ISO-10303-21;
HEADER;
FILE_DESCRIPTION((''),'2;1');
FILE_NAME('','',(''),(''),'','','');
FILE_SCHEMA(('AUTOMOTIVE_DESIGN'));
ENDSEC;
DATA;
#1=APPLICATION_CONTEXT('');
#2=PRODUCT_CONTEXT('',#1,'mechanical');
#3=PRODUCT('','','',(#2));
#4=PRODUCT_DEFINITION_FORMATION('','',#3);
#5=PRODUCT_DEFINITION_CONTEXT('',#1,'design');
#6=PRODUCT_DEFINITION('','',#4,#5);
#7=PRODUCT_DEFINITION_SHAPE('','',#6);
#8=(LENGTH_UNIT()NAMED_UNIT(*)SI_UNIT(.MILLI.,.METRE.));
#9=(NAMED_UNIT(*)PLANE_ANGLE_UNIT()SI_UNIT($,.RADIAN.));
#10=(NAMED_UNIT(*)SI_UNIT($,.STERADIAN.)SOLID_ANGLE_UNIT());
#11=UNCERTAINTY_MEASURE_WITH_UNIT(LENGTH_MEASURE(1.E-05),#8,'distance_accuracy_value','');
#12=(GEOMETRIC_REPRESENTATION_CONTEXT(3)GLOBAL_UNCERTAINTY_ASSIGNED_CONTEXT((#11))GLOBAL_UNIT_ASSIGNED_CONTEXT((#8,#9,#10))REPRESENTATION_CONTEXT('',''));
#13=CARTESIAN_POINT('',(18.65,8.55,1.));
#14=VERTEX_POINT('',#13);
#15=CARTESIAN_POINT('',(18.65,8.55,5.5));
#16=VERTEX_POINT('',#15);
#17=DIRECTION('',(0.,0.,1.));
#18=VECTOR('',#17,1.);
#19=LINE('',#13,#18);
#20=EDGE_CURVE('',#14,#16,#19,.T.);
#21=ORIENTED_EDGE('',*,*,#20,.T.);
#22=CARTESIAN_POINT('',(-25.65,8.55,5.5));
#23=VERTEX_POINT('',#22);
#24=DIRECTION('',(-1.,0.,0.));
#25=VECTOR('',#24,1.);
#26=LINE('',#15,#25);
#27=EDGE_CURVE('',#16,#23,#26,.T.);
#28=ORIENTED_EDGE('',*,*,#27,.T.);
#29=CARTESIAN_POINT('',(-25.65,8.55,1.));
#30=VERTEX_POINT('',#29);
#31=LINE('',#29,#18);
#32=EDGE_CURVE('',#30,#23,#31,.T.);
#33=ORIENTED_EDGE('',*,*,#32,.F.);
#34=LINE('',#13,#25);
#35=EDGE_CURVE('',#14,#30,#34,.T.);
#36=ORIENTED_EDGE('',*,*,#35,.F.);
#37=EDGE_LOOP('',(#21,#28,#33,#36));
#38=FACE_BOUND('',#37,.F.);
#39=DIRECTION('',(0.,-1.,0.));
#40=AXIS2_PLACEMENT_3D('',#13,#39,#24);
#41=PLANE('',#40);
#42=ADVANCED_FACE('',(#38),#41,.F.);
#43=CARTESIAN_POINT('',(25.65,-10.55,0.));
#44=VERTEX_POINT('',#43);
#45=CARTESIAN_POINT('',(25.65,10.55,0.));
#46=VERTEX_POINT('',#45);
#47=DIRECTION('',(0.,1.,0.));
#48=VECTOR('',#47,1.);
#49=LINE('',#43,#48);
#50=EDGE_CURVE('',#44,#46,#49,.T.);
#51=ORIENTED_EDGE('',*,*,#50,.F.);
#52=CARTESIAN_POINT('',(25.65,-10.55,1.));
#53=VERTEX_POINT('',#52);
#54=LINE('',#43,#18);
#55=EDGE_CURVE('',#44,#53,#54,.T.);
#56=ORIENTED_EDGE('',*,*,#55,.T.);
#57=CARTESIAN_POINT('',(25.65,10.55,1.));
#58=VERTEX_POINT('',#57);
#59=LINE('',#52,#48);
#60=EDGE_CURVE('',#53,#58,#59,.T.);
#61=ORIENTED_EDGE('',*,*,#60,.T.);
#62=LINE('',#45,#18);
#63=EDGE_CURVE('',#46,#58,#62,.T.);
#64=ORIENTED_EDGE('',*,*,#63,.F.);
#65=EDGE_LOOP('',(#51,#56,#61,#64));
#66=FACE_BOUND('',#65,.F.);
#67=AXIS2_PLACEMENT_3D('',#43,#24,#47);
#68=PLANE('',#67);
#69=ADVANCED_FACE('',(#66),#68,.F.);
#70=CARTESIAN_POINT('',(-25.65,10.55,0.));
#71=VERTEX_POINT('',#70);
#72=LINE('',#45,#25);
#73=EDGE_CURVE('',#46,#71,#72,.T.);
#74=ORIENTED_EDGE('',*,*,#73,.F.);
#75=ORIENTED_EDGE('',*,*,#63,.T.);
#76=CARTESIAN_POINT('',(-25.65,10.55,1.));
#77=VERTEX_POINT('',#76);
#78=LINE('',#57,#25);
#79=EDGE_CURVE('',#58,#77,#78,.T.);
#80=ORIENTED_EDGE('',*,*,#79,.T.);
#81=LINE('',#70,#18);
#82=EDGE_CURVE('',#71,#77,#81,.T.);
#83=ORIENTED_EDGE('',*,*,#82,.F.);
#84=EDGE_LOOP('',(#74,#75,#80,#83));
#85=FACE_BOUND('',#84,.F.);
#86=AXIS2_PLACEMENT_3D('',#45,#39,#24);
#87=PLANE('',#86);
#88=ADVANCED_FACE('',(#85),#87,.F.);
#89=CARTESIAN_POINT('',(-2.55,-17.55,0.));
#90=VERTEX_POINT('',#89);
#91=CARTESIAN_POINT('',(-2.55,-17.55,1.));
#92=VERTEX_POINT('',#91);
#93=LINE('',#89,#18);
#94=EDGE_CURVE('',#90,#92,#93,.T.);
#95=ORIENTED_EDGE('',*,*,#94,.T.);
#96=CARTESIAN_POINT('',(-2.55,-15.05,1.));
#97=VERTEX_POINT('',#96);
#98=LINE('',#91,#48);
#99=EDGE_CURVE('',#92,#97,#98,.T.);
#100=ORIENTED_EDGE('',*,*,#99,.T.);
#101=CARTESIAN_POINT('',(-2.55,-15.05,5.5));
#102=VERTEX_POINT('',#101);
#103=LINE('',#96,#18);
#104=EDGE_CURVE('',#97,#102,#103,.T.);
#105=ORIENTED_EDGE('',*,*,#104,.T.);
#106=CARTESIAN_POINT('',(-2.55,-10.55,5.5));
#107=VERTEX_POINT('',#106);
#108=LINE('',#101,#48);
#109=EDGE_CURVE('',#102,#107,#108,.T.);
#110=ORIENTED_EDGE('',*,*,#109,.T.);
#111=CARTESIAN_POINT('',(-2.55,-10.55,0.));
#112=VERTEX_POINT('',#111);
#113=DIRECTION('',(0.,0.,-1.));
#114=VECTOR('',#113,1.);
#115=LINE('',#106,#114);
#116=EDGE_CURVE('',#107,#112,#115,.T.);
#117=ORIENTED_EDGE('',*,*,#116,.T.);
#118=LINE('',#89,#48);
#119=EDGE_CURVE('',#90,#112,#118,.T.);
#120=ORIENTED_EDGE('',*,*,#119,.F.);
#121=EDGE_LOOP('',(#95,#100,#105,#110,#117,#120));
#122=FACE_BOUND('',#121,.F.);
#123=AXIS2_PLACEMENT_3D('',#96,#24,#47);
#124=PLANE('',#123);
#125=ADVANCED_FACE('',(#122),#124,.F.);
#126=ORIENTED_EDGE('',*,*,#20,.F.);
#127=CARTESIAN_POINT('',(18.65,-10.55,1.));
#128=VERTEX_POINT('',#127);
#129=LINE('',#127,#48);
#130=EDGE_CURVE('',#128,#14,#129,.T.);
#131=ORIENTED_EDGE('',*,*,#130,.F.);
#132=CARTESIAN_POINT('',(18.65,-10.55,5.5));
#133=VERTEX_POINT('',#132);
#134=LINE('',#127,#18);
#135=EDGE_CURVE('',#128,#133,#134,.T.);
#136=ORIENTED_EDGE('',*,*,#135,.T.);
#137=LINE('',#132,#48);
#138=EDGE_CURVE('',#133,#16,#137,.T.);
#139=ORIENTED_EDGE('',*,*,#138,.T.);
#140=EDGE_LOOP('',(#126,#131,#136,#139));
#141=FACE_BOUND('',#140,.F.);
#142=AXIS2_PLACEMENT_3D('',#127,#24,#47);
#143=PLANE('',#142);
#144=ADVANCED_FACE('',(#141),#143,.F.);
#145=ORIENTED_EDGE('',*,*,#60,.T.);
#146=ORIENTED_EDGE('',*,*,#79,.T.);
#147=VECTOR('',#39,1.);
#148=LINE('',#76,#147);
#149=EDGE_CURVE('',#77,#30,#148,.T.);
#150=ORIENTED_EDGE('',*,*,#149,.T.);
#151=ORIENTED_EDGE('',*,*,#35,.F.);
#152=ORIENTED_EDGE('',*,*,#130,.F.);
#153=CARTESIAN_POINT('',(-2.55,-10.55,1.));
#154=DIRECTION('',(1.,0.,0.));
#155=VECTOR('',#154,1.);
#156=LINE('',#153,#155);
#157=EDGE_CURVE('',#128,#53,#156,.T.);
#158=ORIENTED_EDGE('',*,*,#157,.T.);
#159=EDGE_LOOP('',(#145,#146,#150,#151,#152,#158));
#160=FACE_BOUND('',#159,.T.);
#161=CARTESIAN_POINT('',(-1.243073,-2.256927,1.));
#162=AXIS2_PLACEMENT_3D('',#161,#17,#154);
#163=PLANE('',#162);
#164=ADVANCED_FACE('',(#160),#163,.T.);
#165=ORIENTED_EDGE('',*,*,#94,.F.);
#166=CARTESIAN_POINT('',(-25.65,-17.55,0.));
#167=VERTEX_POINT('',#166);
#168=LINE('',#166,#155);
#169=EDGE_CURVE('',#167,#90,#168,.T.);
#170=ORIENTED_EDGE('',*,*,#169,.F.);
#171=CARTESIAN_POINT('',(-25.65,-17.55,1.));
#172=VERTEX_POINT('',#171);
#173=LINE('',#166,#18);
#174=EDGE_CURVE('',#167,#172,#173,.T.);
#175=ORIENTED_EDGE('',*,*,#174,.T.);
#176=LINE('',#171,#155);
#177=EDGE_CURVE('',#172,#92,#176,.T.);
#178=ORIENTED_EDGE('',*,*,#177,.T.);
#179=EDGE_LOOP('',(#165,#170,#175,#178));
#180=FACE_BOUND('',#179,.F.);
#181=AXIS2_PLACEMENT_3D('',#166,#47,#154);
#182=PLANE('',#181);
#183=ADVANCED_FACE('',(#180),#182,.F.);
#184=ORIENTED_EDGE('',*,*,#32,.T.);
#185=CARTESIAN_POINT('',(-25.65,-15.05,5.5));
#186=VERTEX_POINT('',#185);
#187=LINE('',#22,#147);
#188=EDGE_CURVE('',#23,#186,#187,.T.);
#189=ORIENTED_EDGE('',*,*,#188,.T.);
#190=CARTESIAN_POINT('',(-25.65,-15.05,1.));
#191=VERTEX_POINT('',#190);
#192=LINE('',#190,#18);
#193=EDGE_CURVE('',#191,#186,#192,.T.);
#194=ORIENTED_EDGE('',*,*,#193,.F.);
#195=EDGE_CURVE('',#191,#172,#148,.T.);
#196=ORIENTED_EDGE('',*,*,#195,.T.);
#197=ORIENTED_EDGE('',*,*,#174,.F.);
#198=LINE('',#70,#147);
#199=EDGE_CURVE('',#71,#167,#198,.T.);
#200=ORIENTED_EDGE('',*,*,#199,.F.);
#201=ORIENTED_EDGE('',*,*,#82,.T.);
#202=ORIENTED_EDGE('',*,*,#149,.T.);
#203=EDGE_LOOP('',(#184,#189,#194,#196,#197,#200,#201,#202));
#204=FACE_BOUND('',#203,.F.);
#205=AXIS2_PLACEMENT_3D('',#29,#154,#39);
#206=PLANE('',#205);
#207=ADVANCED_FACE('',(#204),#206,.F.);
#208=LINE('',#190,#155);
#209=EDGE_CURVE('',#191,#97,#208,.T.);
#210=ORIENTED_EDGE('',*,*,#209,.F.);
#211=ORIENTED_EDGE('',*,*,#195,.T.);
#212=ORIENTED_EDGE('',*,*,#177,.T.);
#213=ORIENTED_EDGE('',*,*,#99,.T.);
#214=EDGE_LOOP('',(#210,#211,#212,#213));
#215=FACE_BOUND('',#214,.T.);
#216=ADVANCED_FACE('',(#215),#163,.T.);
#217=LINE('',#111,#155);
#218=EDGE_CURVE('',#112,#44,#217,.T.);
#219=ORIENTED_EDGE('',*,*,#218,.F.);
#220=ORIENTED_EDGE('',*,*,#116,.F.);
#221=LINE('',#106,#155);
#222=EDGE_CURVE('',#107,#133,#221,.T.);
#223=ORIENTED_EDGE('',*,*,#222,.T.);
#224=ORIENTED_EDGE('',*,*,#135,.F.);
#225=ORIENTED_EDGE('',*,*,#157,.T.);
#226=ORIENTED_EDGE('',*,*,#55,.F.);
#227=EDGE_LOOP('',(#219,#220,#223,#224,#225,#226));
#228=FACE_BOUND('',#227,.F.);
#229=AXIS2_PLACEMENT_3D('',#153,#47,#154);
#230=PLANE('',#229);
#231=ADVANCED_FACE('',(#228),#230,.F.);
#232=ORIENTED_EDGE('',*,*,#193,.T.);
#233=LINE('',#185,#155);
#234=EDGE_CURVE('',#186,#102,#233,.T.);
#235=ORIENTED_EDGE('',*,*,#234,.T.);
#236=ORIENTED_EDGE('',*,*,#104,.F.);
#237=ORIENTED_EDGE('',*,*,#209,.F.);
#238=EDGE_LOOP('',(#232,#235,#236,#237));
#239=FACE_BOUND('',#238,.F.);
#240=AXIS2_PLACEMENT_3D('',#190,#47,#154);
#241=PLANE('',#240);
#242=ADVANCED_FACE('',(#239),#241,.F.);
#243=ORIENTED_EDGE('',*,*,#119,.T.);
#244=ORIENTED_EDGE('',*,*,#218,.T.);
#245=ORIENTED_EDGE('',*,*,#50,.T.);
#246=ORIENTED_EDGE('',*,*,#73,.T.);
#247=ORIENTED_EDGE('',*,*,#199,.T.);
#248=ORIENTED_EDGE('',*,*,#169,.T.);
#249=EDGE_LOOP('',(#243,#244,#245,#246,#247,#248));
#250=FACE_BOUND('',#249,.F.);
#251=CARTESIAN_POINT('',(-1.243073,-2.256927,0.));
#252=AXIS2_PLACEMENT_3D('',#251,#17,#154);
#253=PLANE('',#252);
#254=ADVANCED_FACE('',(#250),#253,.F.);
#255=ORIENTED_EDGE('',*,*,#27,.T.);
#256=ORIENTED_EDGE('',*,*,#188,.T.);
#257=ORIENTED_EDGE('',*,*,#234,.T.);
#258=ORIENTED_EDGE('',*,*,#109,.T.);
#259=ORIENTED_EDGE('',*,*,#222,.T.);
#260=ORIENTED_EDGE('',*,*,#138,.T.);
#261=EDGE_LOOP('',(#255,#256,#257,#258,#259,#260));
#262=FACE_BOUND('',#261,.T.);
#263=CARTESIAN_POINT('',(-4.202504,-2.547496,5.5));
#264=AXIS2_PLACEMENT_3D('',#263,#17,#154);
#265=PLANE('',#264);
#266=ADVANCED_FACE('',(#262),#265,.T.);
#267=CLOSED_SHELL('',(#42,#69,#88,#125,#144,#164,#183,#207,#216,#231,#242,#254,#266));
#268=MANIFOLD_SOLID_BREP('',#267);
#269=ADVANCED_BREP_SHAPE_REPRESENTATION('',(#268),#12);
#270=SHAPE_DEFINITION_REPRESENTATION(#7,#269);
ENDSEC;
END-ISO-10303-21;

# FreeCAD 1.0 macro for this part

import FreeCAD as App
import Part
import Sketcher

V = App.Vector


def add_polygon(sketch, points):
    """Adds a closed chain of lines whose ends are joined by coincident constraints."""
    first, n = sketch.GeometryCount, len(points)
    for a, b in zip(points, points[1:] + points[:1]):
        sketch.addGeometry(Part.LineSegment(App.Vector(*a, 0), App.Vector(*b, 0)), False)
    for i in range(n):
        sketch.addConstraint(Sketcher.Constraint("Coincident", first + i, 2, first + (i + 1) % n, 1))

doc = App.newDocument("Part")
body = doc.addObject("PartDesign::Body", "Body")

sketch1 = body.newObject("Sketcher::SketchObject", "Sketch")
sketch1.AttachmentSupport = (doc.getObject("XY_Plane"), [""])
sketch1.MapMode = "FlatFace"
add_polygon(sketch1, [(-3, -11), (26, -11), (26, 11), (-26, 11), (-26, -18), (-3, -18)])
sketch1.addConstraint([
    Sketcher.Constraint("Horizontal", 0),
    Sketcher.Constraint("Vertical", 1),
    Sketcher.Constraint("Horizontal", 2),
    Sketcher.Constraint("Vertical", 3),
    Sketcher.Constraint("Horizontal", 4),
    Sketcher.Constraint("Vertical", 5),
    Sketcher.Constraint("Symmetric", 0, 2, 2, 2, -1, 1),
    Sketcher.Constraint("DistanceY", 5, 1, 5, 2, 7.0),
    Sketcher.Constraint("DistanceX", 0, 1, 0, 2, 28.2),
    Sketcher.Constraint("DistanceX", 2, 2, 2, 1, 51.3),
    Sketcher.Constraint("DistanceY", 1, 1, 1, 2, 21.1),
])
pad1 = body.newObject("PartDesign::Pad", "Pad")
pad1.Profile = sketch1
pad1.Length = 1

sketch2 = body.newObject("Sketcher::SketchObject", "Sketch001")
sketch2.AttachmentSupport = (doc.getObject("XY_Plane"), [""])
sketch2.MapMode = "FlatFace"
sketch2.AttachmentOffset = App.Placement(V(0, 0, 1), App.Rotation())
add_polygon(sketch2, [(18.6, -10.6), (18.6, 8.6), (-25.6, 8.6), (-25.6, -15.1), (-2.5, -15.1), (-2.5, -10.6)])
sketch2.addConstraint([
    Sketcher.Constraint("Vertical", 0),
    Sketcher.Constraint("Horizontal", 1),
    Sketcher.Constraint("Vertical", 2),
    Sketcher.Constraint("Horizontal", 3),
    Sketcher.Constraint("Vertical", 4),
    Sketcher.Constraint("Horizontal", 5),
    Sketcher.Constraint("DistanceX", 1, 2, 1, 1, 44.3),
    Sketcher.Constraint("DistanceX", 3, 1, 3, 2, 23.1),
    Sketcher.Constraint("DistanceY", 0, 1, 0, 2, 19.1),
    Sketcher.Constraint("DistanceY", 2, 2, 2, 1, 23.6),
    Sketcher.Constraint("DistanceX", -1, 1, 0, 2, 18.65),
    Sketcher.Constraint("DistanceY", -1, 1, 0, 2, 8.55),
])
pad2 = body.newObject("PartDesign::Pad", "Pad001")
pad2.Profile = sketch2
pad2.Length = 4.5

doc.recompute()
